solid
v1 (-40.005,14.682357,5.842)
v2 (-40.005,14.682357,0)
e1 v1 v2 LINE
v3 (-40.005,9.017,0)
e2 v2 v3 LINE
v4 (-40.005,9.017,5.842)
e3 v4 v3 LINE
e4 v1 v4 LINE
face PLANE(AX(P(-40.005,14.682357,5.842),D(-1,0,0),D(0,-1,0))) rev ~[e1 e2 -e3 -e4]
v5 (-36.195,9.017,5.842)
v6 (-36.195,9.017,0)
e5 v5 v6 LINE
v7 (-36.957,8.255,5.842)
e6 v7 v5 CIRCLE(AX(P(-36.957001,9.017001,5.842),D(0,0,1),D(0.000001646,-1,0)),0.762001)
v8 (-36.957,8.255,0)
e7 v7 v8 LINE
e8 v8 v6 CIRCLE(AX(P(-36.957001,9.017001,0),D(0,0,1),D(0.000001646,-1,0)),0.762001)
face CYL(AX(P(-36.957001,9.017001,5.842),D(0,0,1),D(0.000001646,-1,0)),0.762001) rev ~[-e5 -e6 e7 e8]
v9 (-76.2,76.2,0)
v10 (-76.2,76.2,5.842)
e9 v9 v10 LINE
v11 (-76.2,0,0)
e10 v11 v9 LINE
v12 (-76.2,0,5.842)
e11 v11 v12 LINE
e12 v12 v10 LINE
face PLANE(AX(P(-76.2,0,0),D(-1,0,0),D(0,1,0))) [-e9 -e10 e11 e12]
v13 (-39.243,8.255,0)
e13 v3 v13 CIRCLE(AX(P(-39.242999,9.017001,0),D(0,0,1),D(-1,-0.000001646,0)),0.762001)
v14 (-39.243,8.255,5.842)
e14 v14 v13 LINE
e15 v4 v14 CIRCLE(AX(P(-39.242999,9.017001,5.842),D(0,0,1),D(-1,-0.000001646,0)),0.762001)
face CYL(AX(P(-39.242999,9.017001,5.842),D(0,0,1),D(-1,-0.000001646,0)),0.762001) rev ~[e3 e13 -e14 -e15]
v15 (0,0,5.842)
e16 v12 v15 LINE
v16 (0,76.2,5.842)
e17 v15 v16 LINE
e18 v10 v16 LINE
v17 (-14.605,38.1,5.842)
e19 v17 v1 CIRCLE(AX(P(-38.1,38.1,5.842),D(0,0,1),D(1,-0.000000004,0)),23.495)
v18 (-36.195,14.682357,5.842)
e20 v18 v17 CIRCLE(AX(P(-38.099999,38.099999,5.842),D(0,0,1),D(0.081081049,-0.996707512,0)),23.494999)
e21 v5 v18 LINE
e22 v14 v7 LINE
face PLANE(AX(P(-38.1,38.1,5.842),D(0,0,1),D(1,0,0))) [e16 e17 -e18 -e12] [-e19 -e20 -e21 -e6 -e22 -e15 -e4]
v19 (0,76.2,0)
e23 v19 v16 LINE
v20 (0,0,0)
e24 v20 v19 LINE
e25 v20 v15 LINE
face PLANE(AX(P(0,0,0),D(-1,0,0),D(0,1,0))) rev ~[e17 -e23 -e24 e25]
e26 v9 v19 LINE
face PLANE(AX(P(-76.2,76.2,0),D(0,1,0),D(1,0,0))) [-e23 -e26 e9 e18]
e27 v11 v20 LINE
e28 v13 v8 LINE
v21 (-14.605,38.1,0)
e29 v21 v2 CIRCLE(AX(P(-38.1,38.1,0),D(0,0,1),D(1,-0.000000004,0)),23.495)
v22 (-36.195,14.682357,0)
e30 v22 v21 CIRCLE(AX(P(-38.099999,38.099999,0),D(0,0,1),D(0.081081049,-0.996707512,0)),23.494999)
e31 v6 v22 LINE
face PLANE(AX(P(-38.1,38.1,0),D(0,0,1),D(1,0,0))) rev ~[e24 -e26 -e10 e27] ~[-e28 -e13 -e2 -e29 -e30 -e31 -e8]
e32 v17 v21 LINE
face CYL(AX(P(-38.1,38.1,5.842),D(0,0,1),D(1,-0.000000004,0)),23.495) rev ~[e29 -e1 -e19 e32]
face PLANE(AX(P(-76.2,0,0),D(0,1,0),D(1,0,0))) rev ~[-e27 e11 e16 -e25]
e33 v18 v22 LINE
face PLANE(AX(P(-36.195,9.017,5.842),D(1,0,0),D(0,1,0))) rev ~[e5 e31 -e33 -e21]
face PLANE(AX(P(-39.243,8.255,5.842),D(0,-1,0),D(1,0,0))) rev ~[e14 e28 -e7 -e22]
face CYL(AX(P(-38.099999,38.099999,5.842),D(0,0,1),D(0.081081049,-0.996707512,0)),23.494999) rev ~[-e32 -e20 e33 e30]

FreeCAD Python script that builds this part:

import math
import FreeCAD as App
import Part
import Sketcher
from FreeCAD import Vector
Q = App.Units.Quantity

doc = App.newDocument("Part")
body = doc.addObject("PartDesign::Body", "Body")

sketch1 = body.newObject("Sketcher::SketchObject", "Sketch")
sketch1.AttachmentSupport = (doc.getObject("XY_Plane"), [""])
sketch1.MapMode = "FlatFace"
sketch1.addGeometry(Part.LineSegment(Vector(-76, 76, 0), Vector(-76, 0, 0)), False)
sketch1.addGeometry(Part.LineSegment(Vector(-76, 0, 0), Vector(0, 0, 0)), False)
sketch1.addGeometry(Part.LineSegment(Vector(0, 0, 0), Vector(0, 76, 0)), False)
sketch1.addGeometry(Part.LineSegment(Vector(0, 76, 0), Vector(-76, 76, 0)), False)
sketch1.addConstraint(Sketcher.Constraint("Coincident", 0, 2, 1, 1))
sketch1.addConstraint(Sketcher.Constraint("Coincident", 1, 2, 2, 1))
sketch1.addConstraint(Sketcher.Constraint("Coincident", 2, 2, 3, 1))
sketch1.addConstraint(Sketcher.Constraint("Coincident", 3, 2, 0, 1))
sketch1.addConstraint(Sketcher.Constraint("Vertical", 0))
sketch1.addConstraint(Sketcher.Constraint("Horizontal", 1))
sketch1.addConstraint(Sketcher.Constraint("Vertical", 2))
sketch1.addConstraint(Sketcher.Constraint("Horizontal", 3))
sketch1.addConstraint(Sketcher.Constraint("Coincident", 1, 2, -1, 1))
sketch1.addConstraint(Sketcher.Constraint("Equal", 3, 0))
sketch1.addConstraint(Sketcher.Constraint("DistanceX", 1, 1, 1, 2, Q("3 in")))
pad1 = body.newObject("PartDesign::Pad", "Pad")
pad1.Profile = sketch1
pad1.Length = Q("0.23 in")

sketch2 = body.newObject("Sketcher::SketchObject", "Sketch001")
sketch2.AttachmentSupport = (doc.getObject("XY_Plane"), [""])
sketch2.MapMode = "FlatFace"
sketch2.AttachmentOffset = App.Placement(Vector(0, 0, 0.23 * 25.4), App.Rotation())
sketch2.addGeometry(Part.ArcOfCircle(Part.Circle(Vector(-39.2, 9, 0), Vector(0, 0, 1), 0.8), math.radians(-180), math.radians(-90)), False)
sketch2.addGeometry(Part.LineSegment(Vector(-39.2, 8.3, 0), Vector(-37, 8.3, 0)), False)
sketch2.addGeometry(Part.ArcOfCircle(Part.Circle(Vector(-37, 9, 0), Vector(0, 0, 1), 0.8), math.radians(-90), math.radians(0)), False)
sketch2.addGeometry(Part.LineSegment(Vector(-36.2, 9, 0), Vector(-36.2, 14.7, 0)), False)
sketch2.addGeometry(Part.ArcOfCircle(Part.Circle(Vector(-38.1, 38.1, 0), Vector(0, 0, 1), 23.5), math.radians(-85), math.radians(0)), False)
sketch2.addGeometry(Part.ArcOfCircle(Part.Circle(Vector(-38.1, 38.1, 0), Vector(0, 0, 1), 23.5), math.radians(0), math.radians(265)), False)
sketch2.addGeometry(Part.LineSegment(Vector(-40, 14.7, 0), Vector(-40, 9, 0)), False)
sketch2.addConstraint(Sketcher.Constraint("Tangent", 0, 2, 1, 1))
sketch2.addConstraint(Sketcher.Constraint("Tangent", 1, 2, 2, 1))
sketch2.addConstraint(Sketcher.Constraint("Tangent", 2, 2, 3, 1))
sketch2.addConstraint(Sketcher.Constraint("Coincident", 3, 2, 4, 1))
sketch2.addConstraint(Sketcher.Constraint("Tangent", 4, 2, 5, 1))
sketch2.addConstraint(Sketcher.Constraint("Coincident", 5, 2, 6, 1))
sketch2.addConstraint(Sketcher.Constraint("Tangent", 6, 2, 0, 1))
sketch2.addConstraint(Sketcher.Constraint("Horizontal", 1))
sketch2.addConstraint(Sketcher.Constraint("Vertical", 3))
sketch2.addConstraint(Sketcher.Constraint("Vertical", 6))
sketch2.addConstraint(Sketcher.Constraint("Equal", 0, 2))
sketch2.addConstraint(Sketcher.Constraint("Equal", 4, 5))
sketch2.addConstraint(Sketcher.Constraint("Horizontal", 5, 3, 4, 2))
sketch2.addConstraint(Sketcher.Constraint("Horizontal", 3, 2, 5, 2))
sketch2.addConstraint(Sketcher.Constraint("Radius", 0, Q("0.03 in")))
sketch2.addConstraint(Sketcher.Constraint("Radius", 4, Q("0.925 in")))
sketch2.addConstraint(Sketcher.Constraint("DistanceX", 1, 1, 1, 2, Q("0.09 in")))
sketch2.addConstraint(Sketcher.Constraint("DistanceX", 4, 3, -1, 1, Q("1.5 in")))
sketch2.addConstraint(Sketcher.Constraint("DistanceY", -1, 1, 4, 3, Q("1.5 in")))
sketch2.addConstraint(Sketcher.Constraint("DistanceY", -1, 1, 0, 3, Q("0.355 in")))
pocket1 = body.newObject("PartDesign::Pocket", "Pocket")
pocket1.Profile = sketch2
pocket1.Type = "ThroughAll"

doc.recompute()
